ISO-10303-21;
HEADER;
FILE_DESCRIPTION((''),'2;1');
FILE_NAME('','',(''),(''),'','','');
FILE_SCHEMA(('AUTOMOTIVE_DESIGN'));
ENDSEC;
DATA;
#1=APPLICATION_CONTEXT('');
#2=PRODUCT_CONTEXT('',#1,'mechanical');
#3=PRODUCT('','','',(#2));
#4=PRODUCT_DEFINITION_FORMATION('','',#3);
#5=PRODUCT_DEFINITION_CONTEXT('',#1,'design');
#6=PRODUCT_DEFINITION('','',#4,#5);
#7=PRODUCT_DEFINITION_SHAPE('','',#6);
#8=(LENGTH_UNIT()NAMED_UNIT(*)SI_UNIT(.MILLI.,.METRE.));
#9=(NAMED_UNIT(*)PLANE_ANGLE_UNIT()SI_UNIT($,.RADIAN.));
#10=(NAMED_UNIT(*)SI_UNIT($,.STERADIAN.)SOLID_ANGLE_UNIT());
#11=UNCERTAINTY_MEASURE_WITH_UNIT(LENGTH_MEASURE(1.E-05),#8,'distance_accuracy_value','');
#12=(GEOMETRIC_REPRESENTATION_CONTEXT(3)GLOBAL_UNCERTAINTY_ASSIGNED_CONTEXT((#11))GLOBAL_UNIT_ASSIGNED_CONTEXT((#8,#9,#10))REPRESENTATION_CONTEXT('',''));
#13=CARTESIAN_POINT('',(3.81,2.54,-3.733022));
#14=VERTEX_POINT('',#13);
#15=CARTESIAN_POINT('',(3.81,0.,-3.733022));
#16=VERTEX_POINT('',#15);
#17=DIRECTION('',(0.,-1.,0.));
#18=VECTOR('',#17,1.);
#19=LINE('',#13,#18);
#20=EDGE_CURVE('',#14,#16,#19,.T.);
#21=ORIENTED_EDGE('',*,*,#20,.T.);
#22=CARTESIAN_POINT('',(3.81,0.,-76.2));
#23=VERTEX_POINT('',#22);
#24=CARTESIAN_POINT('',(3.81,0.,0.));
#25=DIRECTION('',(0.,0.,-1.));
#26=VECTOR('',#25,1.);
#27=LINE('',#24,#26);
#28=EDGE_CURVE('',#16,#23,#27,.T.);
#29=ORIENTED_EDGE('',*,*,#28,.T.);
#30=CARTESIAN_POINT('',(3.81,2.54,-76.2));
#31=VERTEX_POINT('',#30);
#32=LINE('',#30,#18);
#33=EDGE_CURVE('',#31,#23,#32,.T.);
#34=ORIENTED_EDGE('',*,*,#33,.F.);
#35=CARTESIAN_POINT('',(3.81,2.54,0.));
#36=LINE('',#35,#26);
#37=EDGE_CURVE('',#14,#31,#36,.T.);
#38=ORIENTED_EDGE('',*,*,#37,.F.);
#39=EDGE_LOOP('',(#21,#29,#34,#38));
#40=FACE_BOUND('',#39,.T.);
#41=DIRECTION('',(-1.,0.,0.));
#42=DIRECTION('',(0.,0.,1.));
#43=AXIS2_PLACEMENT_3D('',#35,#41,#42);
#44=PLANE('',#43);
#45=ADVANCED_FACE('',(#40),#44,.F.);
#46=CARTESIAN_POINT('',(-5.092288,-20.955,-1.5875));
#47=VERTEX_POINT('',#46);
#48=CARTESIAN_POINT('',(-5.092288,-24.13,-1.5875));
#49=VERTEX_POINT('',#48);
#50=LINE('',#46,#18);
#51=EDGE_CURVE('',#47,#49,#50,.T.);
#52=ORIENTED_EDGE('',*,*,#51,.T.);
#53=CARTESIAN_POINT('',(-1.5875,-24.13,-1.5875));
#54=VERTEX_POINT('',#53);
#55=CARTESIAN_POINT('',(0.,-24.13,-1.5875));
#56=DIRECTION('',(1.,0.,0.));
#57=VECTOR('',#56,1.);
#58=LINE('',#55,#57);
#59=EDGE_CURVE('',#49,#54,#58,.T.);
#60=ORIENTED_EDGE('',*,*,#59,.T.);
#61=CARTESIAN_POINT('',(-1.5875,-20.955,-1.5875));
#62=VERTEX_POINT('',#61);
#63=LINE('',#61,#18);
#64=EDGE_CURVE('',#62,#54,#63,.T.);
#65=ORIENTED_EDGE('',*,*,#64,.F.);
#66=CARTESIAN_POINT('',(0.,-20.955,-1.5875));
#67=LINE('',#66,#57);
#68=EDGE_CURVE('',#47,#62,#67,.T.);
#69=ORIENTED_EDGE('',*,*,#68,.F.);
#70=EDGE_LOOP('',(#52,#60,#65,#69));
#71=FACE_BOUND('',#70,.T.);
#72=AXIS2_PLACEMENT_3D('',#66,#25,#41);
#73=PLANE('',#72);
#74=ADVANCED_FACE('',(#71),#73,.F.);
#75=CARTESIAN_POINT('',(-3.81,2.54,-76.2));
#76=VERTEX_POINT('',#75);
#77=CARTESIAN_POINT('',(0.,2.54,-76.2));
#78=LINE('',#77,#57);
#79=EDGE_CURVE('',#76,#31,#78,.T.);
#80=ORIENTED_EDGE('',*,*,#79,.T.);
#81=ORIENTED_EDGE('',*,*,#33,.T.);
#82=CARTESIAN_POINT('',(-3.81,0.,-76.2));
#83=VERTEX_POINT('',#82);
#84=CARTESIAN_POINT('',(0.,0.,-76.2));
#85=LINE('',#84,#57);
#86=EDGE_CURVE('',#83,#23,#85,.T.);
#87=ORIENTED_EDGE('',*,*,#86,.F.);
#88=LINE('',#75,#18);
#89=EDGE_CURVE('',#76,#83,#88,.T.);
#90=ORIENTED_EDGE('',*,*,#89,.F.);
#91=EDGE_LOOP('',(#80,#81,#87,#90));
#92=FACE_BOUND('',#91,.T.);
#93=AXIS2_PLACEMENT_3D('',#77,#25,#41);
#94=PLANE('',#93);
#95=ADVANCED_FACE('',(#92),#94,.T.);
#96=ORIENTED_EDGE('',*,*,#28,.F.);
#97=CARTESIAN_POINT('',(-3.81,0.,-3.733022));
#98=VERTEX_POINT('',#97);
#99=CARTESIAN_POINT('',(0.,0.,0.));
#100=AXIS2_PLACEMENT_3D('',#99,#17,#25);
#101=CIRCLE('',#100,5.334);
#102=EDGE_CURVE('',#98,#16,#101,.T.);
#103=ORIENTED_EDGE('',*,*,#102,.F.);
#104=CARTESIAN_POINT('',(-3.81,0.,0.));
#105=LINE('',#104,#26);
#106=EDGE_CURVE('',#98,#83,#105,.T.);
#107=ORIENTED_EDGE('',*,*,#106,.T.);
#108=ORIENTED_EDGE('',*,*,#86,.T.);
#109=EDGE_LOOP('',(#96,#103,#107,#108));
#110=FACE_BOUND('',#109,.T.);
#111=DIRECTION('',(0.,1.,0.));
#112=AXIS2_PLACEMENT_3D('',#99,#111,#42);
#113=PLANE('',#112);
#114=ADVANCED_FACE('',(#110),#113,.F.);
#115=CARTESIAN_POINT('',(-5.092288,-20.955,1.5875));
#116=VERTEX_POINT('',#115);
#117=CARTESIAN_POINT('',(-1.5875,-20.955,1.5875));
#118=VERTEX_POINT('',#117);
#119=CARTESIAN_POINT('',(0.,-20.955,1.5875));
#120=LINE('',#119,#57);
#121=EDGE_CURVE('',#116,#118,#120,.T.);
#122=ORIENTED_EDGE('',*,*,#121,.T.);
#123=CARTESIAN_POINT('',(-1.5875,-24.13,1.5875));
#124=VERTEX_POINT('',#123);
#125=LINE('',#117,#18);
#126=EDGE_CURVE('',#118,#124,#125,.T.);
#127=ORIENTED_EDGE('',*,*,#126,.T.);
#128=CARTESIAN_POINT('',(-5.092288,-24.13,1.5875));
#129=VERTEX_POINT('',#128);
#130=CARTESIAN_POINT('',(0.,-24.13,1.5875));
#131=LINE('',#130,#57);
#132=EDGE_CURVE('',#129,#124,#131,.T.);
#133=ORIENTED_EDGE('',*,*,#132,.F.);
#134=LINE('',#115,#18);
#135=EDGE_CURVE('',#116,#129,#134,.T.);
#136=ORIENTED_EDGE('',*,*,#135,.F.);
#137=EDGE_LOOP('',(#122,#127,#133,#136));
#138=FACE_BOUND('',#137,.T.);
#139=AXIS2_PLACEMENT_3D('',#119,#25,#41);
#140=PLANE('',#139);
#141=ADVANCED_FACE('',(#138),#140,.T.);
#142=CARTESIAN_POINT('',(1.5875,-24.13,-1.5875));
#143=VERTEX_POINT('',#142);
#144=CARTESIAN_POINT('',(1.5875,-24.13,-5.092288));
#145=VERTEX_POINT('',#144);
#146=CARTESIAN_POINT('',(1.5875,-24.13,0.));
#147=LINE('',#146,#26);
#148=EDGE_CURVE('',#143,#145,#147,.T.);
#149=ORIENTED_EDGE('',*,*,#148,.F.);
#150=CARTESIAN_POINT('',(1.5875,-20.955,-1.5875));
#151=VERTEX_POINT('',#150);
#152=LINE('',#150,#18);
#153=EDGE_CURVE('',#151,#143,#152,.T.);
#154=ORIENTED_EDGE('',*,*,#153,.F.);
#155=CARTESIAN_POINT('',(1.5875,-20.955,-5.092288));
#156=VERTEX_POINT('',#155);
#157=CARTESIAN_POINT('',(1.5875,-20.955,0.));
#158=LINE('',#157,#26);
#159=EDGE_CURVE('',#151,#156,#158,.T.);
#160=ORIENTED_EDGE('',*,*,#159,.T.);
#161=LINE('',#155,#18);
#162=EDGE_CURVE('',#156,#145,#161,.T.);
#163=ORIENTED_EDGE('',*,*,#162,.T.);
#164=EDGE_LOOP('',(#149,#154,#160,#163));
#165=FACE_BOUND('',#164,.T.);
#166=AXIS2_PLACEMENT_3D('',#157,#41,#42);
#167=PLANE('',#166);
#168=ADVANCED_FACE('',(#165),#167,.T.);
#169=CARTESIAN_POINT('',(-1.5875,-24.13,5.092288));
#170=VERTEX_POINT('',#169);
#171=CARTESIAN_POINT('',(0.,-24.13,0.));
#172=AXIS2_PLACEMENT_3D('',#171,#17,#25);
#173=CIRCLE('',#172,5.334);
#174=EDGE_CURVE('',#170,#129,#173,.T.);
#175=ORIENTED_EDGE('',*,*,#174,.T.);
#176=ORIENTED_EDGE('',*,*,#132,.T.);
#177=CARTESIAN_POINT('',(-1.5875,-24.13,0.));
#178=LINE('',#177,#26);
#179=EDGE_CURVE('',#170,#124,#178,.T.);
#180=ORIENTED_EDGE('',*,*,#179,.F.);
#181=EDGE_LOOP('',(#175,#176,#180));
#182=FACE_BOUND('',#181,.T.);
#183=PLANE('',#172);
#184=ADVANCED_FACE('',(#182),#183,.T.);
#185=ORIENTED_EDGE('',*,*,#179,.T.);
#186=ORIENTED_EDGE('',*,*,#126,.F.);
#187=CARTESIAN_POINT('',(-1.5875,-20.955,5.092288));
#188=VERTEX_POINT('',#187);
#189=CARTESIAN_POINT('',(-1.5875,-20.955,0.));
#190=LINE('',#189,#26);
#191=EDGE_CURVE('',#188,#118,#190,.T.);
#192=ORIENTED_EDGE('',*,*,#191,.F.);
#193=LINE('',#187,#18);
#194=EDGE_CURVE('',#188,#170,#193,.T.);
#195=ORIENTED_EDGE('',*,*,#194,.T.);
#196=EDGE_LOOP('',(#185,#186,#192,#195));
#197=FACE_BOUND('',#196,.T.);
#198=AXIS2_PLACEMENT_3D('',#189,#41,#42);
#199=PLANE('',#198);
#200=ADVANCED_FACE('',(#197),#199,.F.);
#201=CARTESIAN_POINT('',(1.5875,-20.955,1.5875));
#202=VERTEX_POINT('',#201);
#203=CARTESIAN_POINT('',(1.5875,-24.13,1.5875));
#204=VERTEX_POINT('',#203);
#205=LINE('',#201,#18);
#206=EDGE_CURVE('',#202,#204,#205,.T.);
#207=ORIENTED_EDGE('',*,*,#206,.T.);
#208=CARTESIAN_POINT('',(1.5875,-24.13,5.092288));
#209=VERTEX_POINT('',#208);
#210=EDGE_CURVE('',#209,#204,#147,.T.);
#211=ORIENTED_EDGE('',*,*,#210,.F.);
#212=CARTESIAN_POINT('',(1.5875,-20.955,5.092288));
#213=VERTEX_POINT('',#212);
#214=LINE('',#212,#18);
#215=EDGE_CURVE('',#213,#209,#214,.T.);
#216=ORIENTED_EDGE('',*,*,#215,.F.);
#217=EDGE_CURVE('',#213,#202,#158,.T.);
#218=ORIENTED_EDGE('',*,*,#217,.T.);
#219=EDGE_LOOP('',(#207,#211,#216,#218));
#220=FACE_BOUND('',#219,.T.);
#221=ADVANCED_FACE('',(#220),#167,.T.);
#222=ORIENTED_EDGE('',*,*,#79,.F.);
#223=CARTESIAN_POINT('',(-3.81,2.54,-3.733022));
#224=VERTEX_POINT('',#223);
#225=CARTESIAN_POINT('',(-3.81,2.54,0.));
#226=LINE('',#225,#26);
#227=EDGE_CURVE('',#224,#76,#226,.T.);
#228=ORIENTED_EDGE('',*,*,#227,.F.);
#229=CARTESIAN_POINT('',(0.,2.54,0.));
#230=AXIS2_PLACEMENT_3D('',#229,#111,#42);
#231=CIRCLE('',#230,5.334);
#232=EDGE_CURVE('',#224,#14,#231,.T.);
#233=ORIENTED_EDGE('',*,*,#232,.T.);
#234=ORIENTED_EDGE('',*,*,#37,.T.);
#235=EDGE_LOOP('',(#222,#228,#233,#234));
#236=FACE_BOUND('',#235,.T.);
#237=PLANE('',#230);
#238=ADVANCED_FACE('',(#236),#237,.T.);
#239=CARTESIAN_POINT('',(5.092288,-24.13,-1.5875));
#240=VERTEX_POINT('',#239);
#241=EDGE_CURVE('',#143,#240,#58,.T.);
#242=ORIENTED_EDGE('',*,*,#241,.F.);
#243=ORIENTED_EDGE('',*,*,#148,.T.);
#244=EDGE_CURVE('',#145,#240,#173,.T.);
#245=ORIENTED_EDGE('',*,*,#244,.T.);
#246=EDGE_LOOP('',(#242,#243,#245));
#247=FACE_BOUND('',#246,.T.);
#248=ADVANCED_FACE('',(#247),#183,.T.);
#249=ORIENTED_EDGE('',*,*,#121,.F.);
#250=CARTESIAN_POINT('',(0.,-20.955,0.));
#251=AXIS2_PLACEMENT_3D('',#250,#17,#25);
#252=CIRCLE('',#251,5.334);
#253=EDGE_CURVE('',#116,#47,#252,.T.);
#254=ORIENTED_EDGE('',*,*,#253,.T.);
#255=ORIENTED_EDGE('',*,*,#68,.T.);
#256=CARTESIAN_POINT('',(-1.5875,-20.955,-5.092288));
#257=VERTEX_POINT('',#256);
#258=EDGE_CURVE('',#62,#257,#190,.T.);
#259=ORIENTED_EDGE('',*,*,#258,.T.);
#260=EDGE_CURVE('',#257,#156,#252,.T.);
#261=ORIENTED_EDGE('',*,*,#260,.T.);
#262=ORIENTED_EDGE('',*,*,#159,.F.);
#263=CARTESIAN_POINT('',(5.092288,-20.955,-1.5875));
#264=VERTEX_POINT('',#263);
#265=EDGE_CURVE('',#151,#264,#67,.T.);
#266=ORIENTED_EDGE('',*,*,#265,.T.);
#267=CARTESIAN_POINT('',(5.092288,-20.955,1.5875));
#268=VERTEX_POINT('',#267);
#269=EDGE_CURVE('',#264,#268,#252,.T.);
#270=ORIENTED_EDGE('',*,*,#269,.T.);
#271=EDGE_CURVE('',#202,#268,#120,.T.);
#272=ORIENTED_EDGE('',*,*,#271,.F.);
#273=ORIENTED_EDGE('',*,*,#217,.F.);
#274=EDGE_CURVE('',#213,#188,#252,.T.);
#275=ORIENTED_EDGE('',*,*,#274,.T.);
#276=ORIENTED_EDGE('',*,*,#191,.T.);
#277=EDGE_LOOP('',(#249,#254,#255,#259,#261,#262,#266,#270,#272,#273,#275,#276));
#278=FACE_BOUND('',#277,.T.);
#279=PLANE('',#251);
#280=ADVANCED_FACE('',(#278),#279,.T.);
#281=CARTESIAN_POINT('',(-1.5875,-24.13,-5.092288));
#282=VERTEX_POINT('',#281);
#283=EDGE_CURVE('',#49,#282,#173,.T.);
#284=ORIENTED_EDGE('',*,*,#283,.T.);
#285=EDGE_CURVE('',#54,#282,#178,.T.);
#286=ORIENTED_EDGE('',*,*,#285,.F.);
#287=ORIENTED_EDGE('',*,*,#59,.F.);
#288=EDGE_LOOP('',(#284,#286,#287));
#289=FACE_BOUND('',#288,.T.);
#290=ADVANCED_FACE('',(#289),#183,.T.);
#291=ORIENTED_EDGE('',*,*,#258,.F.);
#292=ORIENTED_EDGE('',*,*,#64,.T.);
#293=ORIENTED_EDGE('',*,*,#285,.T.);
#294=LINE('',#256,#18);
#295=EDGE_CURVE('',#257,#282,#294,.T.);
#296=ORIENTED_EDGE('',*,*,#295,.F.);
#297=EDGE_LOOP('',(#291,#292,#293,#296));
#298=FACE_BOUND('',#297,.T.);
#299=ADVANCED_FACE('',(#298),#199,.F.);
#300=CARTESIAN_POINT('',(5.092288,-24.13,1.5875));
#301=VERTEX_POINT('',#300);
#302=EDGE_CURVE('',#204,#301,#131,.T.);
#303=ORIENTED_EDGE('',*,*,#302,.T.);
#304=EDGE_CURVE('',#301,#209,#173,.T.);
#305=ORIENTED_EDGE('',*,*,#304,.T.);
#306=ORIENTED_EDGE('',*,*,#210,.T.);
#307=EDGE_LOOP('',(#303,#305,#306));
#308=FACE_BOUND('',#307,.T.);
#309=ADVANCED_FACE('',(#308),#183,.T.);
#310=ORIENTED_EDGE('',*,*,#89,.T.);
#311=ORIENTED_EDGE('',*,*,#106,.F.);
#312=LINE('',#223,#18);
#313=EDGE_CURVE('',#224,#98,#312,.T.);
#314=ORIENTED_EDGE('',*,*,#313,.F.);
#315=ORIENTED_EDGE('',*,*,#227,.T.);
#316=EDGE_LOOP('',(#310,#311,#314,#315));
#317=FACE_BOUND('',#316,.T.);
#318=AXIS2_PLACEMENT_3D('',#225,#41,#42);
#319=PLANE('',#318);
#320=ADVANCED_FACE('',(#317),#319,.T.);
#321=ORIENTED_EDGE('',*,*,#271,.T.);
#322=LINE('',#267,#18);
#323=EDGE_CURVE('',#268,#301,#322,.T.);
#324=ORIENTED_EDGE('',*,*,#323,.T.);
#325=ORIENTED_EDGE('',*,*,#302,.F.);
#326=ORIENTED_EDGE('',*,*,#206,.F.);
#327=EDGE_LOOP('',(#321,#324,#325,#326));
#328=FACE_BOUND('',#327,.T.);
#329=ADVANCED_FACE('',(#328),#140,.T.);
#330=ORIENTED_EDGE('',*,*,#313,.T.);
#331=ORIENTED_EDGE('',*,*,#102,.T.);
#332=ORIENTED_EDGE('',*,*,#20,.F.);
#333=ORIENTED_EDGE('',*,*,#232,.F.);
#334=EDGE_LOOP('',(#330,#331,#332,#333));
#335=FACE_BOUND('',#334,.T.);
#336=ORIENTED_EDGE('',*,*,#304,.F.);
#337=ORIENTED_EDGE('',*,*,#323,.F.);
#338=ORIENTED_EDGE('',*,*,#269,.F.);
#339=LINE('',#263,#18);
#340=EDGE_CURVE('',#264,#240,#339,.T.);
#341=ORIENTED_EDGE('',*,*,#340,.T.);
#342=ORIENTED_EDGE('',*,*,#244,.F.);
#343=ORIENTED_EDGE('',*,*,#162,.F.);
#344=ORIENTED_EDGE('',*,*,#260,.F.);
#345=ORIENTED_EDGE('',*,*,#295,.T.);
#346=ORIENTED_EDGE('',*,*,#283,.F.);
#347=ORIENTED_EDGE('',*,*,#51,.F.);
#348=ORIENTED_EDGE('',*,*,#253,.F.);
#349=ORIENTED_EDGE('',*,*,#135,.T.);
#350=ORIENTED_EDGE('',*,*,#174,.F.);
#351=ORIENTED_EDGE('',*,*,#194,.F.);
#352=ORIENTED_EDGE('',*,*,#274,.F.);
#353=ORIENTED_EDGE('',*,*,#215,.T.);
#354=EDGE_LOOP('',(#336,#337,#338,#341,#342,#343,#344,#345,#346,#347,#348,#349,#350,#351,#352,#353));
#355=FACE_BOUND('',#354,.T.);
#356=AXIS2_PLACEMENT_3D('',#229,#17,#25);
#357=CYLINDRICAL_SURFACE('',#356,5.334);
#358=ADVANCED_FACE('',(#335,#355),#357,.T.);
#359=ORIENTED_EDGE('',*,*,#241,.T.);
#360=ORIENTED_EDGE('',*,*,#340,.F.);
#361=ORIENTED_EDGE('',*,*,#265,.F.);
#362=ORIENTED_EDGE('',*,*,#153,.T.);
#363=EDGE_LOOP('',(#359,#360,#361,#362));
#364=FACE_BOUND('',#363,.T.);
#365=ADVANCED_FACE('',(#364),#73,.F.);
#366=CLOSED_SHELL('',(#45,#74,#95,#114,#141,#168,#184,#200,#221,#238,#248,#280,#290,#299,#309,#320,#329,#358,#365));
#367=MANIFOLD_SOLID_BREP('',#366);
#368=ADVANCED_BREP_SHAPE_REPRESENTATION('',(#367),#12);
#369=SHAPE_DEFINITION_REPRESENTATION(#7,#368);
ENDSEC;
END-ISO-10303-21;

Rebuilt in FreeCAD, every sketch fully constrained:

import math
import FreeCAD as App
import Part
import Sketcher
Q = App.Units.Quantity

doc = App.newDocument("Part")
params = doc.addObject("Spreadsheet::Sheet", "Params")
for row, (alias, value) in enumerate([
    ("sketch1_radius", "0.21 in"),
    ("sketch1_width", "0.3 in"),
    ("pad1_length", "0.1 in"),
    ("sketch2_diameter", "0.42 in"),
    ("pad2_length", "0.95 in"),
    ("sketch3_radius", "0.21 in"),
    ("pocket1_length", "0.125 in"),
], start=1):
    params.set(f"A{row}", alias)
    params.set(f"B{row}", "=" + value)
    params.setAlias(f"B{row}", alias)

body = doc.addObject("PartDesign::Body", "Body")

# Sketch on XZ plane
sketch1 = body.newObject("Sketcher::SketchObject", "Sketch")
sketch1.AttachmentSupport = (doc.getObject("XZ_Plane"), [""])
sketch1.MapMode = "FlatFace"
sketch1.addGeometry([
    Part.ArcOfCircle(Part.Circle(App.Vector(0, 0, 0), App.Vector(0, 0, 1), 5), math.radians(-44), math.radians(224)),
    Part.LineSegment(App.Vector(4, -4, 0), App.Vector(4, -76, 0)),
    Part.LineSegment(App.Vector(4, -76, 0), App.Vector(-4, -76, 0)),
    Part.LineSegment(App.Vector(-4, -76, 0), App.Vector(-4, -4, 0)),
], False)
sketch1.addConstraint([
    Sketcher.Constraint("Coincident", 0, 1, 1, 1),
    Sketcher.Constraint("Coincident", 1, 2, 2, 1),
    Sketcher.Constraint("Coincident", 2, 2, 3, 1),
    Sketcher.Constraint("Coincident", 3, 2, 0, 2),
    Sketcher.Constraint("Vertical", 1),
    Sketcher.Constraint("Horizontal", 2),
    Sketcher.Constraint("Vertical", 3),
    Sketcher.Constraint("Coincident", 0, 3, -1, 1),
    Sketcher.Constraint("Horizontal", 0, 1, 3, 2),
    Sketcher.Constraint("Radius", 0, Q("0.21 in")),
    Sketcher.Constraint("DistanceX", 2, 2, 2, 1, Q("0.3 in")),
    Sketcher.Constraint("DistanceY", 1, 2, -1, 1, Q("3 in")),
])
sketch1.setExpression("Constraints[9]", "Params.sketch1_radius")
sketch1.setExpression("Constraints[10]", "Params.sketch1_width")
pad1 = body.newObject("PartDesign::Pad", "Pad")
pad1.Profile = sketch1
pad1.setExpression("Length", "Params.pad1_length")
pad1.Reversed = True

# Sketch on XZ plane
sketch2 = body.newObject("Sketcher::SketchObject", "Sketch001")
sketch2.AttachmentSupport = (doc.getObject("XZ_Plane"), [""])
sketch2.MapMode = "FlatFace"
sketch2.AttachmentOffset = App.Placement(App.Vector(0, 0, 0.95 * 25.4), App.Rotation())
sketch2.addGeometry(Part.Circle(App.Vector(0, 0, 0), App.Vector(0, 0, 1), 5), False)
sketch2.addConstraint([
    Sketcher.Constraint("Coincident", 0, 3, -1, 1),
    Sketcher.Constraint("Diameter", 0, Q("0.42 in")),
])
sketch2.setExpression("Constraints[1]", "Params.sketch2_diameter")
pad2 = body.newObject("PartDesign::Pad", "Pad001")
pad2.Profile = sketch2
pad2.setExpression("Length", "Params.pad2_length")
pad2.Reversed = True

# Sketch on XZ plane
sketch3 = body.newObject("Sketcher::SketchObject", "Sketch002")
sketch3.AttachmentSupport = (doc.getObject("XZ_Plane"), [""])
sketch3.MapMode = "FlatFace"
sketch3.AttachmentOffset = App.Placement(App.Vector(0, 0, 0.95 * 25.4), App.Rotation())
sketch3.addGeometry([
    Part.ArcOfCircle(Part.Circle(App.Vector(0, 0, 0), App.Vector(0, 0, 1), 5.3), math.radians(163), math.radians(197)),  # 0
    Part.LineSegment(App.Vector(-5.1, -1.6, 0), App.Vector(-1.6, -1.6, 0)),  # 1
    Part.LineSegment(App.Vector(-1.6, -1.6, 0), App.Vector(-1.6, -5.1, 0)),  # 2
    Part.ArcOfCircle(Part.Circle(App.Vector(0, 0, 0), App.Vector(0, 0, 1), 5.3), math.radians(-107), math.radians(-73)),  # 3
    Part.LineSegment(App.Vector(1.6, -5.1, 0), App.Vector(1.6, -1.6, 0)),  # 4
    Part.LineSegment(App.Vector(1.6, -1.6, 0), App.Vector(5.1, -1.6, 0)),  # 5
    Part.ArcOfCircle(Part.Circle(App.Vector(0, 0, 0), App.Vector(0, 0, 1), 5.3), math.radians(-17.31), math.radians(0)),  # 6
    Part.ArcOfCircle(Part.Circle(App.Vector(0, 0, 0), App.Vector(0, 0, 1), 5.3), math.radians(0), math.radians(17.31)),  # 7
    Part.LineSegment(App.Vector(5.1, 1.6, 0), App.Vector(1.6, 1.6, 0)),  # 8
    Part.LineSegment(App.Vector(1.6, 1.6, 0), App.Vector(1.6, 5.1, 0)),  # 9
    Part.ArcOfCircle(Part.Circle(App.Vector(0, 0, 0), App.Vector(0, 0, 1), 5.3), math.radians(73), math.radians(107)),  # 10
    Part.LineSegment(App.Vector(-1.6, 5.1, 0), App.Vector(-1.6, 1.6, 0)),  # 11
    Part.LineSegment(App.Vector(-1.6, 1.6, 0), App.Vector(-5.1, 1.6, 0)),  # 12
], False)
sketch3.addConstraint([
    Sketcher.Constraint("Coincident", 0, 2, 1, 1),
    Sketcher.Constraint("Coincident", 1, 2, 2, 1),
    Sketcher.Constraint("Coincident", 2, 2, 3, 1),
    Sketcher.Constraint("Coincident", 3, 2, 4, 1),
    Sketcher.Constraint("Coincident", 4, 2, 5, 1),
    Sketcher.Constraint("Coincident", 5, 2, 6, 1),
    Sketcher.Constraint("Tangent", 6, 2, 7, 1),
    Sketcher.Constraint("Coincident", 7, 2, 8, 1),
    Sketcher.Constraint("Coincident", 8, 2, 9, 1),
    Sketcher.Constraint("Coincident", 9, 2, 10, 1),
    Sketcher.Constraint("Coincident", 10, 2, 11, 1),
    Sketcher.Constraint("Coincident", 11, 2, 12, 1),
    Sketcher.Constraint("Coincident", 12, 2, 0, 1),
    Sketcher.Constraint("Horizontal", 1),
    Sketcher.Constraint("Vertical", 2),
    Sketcher.Constraint("Vertical", 4),
    Sketcher.Constraint("Horizontal", 5),
    Sketcher.Constraint("Horizontal", 8),
    Sketcher.Constraint("Vertical", 9),
    Sketcher.Constraint("Vertical", 11),
    Sketcher.Constraint("Horizontal", 12),
    Sketcher.Constraint("Coincident", 0, 3, -1, 1),
    Sketcher.Constraint("Coincident", 3, 3, -1, 1),
    Sketcher.Constraint("Coincident", 6, 3, -1, 1),
    Sketcher.Constraint("Coincident", 10, 3, -1, 1),
    Sketcher.Constraint("Equal", 0, 3),
    Sketcher.Constraint("Equal", 3, 6),
    Sketcher.Constraint("Equal", 6, 7),
    Sketcher.Constraint("Equal", 7, 10),
    Sketcher.Constraint("Symmetric", 1, 2, 8, 2, -1, 1),
    Sketcher.Constraint("Symmetric", 4, 2, 11, 2, -1, 1),
    Sketcher.Constraint("Symmetric", 1, 2, 4, 2, -2),
    Sketcher.Constraint("PointOnObject", 6, 2, -1),
    Sketcher.Constraint("Equal", 12, 2),
    Sketcher.Constraint("Radius", 0, Q("0.21 in")),
    Sketcher.Constraint("DistanceY", 0, 2, -1, 1, Q("0.0625 in")),
])
sketch3.setExpression("Constraints[34]", "Params.sketch3_radius")
pocket1 = body.newObject("PartDesign::Pocket", "Pocket")
pocket1.Profile = sketch3
pocket1.setExpression("Length", "Params.pocket1_length")

doc.recompute()
